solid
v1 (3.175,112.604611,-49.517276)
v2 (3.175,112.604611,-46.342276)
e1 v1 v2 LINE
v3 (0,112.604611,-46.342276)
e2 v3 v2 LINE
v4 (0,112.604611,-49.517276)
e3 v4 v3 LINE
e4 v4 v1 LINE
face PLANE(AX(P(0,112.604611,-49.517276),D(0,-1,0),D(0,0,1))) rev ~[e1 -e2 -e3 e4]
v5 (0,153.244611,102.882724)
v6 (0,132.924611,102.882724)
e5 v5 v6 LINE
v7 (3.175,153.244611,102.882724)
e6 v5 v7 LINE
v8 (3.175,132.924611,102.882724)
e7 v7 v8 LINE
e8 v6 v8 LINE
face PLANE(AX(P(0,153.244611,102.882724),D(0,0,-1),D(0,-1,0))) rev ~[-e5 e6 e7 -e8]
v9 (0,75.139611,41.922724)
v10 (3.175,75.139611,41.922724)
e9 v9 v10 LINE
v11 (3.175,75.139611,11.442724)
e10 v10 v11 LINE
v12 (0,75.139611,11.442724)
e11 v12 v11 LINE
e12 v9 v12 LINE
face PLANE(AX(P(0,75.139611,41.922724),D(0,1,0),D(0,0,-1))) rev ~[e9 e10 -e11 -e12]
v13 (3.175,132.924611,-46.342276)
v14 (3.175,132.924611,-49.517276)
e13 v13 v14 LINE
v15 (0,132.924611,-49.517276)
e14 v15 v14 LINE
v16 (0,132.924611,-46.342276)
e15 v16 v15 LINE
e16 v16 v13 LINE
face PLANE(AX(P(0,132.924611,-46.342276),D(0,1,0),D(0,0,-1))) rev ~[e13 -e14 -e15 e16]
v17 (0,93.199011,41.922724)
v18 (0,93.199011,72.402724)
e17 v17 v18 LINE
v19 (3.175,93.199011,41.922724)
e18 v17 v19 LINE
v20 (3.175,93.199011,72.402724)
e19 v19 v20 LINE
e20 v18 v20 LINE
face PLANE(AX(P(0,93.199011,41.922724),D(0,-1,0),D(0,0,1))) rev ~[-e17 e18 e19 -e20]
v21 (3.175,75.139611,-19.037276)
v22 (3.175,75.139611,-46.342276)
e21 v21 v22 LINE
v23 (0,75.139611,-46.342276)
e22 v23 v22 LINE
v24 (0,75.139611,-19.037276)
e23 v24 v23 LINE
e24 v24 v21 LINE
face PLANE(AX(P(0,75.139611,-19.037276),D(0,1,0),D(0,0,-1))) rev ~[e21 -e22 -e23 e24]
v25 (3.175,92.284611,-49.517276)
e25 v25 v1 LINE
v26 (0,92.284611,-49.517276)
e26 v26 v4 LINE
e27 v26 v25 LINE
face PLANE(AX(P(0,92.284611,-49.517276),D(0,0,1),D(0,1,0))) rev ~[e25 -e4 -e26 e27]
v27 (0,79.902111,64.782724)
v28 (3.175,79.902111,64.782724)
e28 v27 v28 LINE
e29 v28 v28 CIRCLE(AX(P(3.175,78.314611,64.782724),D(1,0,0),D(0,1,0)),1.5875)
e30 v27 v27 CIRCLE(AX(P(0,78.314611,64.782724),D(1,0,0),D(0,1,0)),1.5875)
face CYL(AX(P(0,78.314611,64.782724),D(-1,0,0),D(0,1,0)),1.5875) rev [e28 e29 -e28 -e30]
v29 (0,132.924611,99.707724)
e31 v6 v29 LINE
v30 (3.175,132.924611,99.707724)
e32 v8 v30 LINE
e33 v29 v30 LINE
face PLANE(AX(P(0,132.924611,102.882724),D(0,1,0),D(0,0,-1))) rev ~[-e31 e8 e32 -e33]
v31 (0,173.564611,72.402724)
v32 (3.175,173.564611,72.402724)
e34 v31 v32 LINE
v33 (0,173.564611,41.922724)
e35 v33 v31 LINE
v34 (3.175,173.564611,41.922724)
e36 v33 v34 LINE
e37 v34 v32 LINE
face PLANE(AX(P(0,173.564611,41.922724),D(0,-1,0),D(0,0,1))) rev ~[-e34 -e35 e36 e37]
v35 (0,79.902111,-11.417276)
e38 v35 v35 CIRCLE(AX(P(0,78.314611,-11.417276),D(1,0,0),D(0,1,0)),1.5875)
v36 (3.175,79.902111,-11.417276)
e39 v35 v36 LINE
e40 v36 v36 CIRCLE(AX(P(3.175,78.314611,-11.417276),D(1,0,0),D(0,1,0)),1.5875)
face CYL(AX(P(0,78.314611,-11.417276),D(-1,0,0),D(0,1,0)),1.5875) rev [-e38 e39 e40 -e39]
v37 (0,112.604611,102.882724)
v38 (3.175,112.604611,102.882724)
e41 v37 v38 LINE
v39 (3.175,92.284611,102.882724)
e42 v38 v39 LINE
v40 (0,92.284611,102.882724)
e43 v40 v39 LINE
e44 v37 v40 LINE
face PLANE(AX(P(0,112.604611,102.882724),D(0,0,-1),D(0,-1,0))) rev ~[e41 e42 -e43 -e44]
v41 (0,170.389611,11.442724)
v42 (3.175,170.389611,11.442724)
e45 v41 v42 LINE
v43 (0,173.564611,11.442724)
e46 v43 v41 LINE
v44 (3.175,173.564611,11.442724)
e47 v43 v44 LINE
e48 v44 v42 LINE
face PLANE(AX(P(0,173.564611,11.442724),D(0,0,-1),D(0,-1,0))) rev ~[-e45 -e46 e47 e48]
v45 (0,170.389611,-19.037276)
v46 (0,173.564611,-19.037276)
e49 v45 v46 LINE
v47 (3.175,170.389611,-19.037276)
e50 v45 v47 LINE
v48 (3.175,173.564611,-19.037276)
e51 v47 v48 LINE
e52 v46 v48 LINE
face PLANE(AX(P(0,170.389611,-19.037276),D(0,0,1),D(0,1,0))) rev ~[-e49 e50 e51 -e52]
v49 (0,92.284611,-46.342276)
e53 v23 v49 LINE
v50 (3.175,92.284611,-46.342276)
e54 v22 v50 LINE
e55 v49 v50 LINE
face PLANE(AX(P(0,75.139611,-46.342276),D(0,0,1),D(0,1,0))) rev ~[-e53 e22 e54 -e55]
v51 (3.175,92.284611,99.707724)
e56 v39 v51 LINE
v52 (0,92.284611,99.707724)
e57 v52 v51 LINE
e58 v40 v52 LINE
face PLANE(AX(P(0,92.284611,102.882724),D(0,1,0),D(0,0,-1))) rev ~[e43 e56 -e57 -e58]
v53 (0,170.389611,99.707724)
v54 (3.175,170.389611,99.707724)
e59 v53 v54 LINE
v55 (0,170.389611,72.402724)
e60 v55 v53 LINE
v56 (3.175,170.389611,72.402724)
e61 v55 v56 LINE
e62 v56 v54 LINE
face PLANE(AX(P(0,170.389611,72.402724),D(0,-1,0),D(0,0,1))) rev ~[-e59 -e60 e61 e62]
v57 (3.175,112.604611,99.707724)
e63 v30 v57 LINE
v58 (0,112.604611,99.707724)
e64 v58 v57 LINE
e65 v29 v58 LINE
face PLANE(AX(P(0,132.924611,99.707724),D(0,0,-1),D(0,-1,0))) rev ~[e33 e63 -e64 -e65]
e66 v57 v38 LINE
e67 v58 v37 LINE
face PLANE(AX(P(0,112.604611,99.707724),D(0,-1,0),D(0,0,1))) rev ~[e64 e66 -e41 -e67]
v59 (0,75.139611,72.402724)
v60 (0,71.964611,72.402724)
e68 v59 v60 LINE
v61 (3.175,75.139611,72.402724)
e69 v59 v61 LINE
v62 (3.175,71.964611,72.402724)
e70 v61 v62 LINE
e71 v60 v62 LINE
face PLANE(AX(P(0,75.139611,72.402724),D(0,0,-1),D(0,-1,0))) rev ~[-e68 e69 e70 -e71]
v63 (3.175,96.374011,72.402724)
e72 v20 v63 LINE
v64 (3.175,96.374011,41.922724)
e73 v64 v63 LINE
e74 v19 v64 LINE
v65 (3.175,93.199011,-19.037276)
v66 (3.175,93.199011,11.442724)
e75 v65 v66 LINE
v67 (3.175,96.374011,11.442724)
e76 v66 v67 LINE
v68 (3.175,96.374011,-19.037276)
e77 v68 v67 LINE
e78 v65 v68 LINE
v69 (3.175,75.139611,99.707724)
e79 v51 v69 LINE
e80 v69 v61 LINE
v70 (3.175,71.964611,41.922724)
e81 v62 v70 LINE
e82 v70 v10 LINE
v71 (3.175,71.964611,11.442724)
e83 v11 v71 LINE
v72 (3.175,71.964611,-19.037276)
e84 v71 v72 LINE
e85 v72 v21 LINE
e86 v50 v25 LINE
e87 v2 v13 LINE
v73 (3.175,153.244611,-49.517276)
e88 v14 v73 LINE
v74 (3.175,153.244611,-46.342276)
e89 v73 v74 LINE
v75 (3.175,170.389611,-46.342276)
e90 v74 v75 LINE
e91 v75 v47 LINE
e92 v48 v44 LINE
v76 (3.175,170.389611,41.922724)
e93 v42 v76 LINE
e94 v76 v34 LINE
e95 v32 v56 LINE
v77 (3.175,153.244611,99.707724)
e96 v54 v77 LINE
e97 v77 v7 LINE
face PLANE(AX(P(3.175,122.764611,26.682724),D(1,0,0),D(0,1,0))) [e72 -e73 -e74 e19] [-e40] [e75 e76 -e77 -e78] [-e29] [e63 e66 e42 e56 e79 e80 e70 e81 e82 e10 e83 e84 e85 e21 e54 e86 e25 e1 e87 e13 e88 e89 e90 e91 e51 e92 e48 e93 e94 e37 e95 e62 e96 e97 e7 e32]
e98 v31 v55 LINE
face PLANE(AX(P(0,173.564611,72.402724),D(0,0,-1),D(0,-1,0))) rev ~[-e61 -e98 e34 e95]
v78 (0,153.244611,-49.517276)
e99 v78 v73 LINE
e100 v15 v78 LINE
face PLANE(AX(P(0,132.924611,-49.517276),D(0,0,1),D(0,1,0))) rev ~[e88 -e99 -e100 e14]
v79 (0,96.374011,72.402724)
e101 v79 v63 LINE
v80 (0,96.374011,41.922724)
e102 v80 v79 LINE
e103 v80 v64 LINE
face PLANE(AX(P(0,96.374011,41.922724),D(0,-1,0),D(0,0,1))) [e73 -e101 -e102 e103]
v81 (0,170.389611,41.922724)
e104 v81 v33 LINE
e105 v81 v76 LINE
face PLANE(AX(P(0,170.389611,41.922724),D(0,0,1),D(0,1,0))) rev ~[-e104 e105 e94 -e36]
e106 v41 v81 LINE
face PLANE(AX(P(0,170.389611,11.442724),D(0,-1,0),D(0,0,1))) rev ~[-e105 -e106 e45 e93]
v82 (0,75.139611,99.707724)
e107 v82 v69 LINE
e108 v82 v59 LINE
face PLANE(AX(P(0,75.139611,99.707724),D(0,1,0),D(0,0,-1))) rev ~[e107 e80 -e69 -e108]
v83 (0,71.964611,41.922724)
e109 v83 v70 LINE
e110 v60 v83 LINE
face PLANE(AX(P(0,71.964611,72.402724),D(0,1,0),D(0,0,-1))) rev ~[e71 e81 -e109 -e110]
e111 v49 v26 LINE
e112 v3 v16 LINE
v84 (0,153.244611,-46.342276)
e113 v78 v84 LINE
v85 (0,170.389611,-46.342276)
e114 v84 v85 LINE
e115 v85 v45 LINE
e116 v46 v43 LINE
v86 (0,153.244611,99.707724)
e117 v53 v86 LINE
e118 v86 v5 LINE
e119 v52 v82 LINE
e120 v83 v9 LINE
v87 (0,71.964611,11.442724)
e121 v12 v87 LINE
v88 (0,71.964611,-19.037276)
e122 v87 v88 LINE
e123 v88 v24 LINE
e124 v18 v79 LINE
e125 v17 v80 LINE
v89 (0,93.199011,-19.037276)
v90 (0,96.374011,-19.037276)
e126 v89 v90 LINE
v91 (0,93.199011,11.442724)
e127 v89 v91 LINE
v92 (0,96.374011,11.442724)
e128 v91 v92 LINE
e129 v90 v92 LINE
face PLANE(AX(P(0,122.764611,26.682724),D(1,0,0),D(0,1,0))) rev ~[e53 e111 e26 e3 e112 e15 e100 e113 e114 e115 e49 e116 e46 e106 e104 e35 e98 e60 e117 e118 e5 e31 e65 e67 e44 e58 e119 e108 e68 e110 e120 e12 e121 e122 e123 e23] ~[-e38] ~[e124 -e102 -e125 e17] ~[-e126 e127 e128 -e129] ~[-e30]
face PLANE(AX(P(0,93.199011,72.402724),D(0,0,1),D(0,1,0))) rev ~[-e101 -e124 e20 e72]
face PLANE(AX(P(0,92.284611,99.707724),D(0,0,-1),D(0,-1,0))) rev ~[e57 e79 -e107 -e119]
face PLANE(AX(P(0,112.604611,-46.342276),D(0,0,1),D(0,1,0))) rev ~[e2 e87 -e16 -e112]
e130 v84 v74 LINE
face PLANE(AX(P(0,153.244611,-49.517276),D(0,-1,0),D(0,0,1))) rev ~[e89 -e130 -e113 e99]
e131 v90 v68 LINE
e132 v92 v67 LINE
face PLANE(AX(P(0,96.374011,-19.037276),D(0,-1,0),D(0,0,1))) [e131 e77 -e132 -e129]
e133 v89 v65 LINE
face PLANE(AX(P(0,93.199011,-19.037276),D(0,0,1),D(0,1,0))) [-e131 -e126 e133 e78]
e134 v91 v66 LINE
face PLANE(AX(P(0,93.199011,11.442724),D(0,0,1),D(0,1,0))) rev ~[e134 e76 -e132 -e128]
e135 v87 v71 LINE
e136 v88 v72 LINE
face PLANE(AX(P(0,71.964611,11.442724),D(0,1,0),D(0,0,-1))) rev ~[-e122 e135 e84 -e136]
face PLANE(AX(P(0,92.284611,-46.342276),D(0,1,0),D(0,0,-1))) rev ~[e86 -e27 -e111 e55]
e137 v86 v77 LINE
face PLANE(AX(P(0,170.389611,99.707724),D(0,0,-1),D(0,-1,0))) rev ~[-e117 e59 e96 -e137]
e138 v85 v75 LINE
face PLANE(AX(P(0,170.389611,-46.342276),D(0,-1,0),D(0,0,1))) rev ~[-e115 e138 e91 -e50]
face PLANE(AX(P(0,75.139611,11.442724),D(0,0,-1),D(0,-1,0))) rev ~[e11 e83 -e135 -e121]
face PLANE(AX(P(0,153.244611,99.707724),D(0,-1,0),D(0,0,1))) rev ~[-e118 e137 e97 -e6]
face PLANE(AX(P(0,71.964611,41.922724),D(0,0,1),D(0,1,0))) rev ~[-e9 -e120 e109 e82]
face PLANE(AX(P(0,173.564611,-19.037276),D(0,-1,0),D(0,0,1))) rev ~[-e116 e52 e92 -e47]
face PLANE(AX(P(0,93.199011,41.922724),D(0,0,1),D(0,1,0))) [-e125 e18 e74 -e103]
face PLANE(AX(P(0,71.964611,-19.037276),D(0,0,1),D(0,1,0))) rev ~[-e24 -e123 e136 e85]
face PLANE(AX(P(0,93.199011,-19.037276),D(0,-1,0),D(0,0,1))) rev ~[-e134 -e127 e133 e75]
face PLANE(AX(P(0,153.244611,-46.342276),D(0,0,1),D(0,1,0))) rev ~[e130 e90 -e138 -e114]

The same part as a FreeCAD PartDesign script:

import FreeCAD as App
import Part
import Sketcher
from FreeCAD import Vector
Q = App.Units.Quantity

doc = App.newDocument("Part")
body = doc.addObject("PartDesign::Body", "Body")

# Sketch on YZ plane
sketch1 = doc.addObject("Sketcher::SketchObject", "Sketch")
body.addObject(sketch1)
sketch1.AttachmentSupport = (doc.YZ_Plane, [""])
sketch1.MapMode = "FlatFace"
sketch1.addGeometry(Part.LineSegment(Vector(92.3, 102.9, 0), Vector(92.3, 99.7, 0)), False)
sketch1.addGeometry(Part.LineSegment(Vector(92.3, 99.7, 0), Vector(75.1, 99.7, 0)), False)
sketch1.addGeometry(Part.LineSegment(Vector(75.1, 99.7, 0), Vector(75.1, 72.4, 0)), False)
sketch1.addGeometry(Part.LineSegment(Vector(75.1, 72.4, 0), Vector(72, 72.4, 0)), False)
sketch1.addGeometry(Part.LineSegment(Vector(72, 72.4, 0), Vector(72, 41.9, 0)), False)
sketch1.addGeometry(Part.LineSegment(Vector(72, 41.9, 0), Vector(75.1, 41.9, 0)), False)
sketch1.addGeometry(Part.LineSegment(Vector(75.1, 41.9, 0), Vector(75.1, 11.4, 0)), False)
sketch1.addGeometry(Part.LineSegment(Vector(75.1, 11.4, 0), Vector(72, 11.4, 0)), False)
sketch1.addGeometry(Part.LineSegment(Vector(72, 11.4, 0), Vector(72, -19, 0)), False)
sketch1.addGeometry(Part.LineSegment(Vector(72, -19, 0), Vector(75.1, -19, 0)), False)
sketch1.addGeometry(Part.LineSegment(Vector(75.1, -19, 0), Vector(75.1, -46.3, 0)), False)
sketch1.addGeometry(Part.LineSegment(Vector(75.1, -46.3, 0), Vector(92.3, -46.3, 0)), False)
sketch1.addGeometry(Part.LineSegment(Vector(92.3, -46.3, 0), Vector(92.3, -49.5, 0)), False)
sketch1.addGeometry(Part.LineSegment(Vector(92.3, -49.5, 0), Vector(112.6, -49.5, 0)), False)
sketch1.addGeometry(Part.LineSegment(Vector(112.6, -49.5, 0), Vector(112.6, -46.3, 0)), False)
sketch1.addGeometry(Part.LineSegment(Vector(112.6, -46.3, 0), Vector(132.9, -46.3, 0)), False)
sketch1.addGeometry(Part.LineSegment(Vector(132.9, -46.3, 0), Vector(132.9, -49.5, 0)), False)
sketch1.addGeometry(Part.LineSegment(Vector(132.9, -49.5, 0), Vector(153.2, -49.5, 0)), False)
sketch1.addGeometry(Part.LineSegment(Vector(153.2, -49.5, 0), Vector(153.2, -46.3, 0)), False)
sketch1.addGeometry(Part.LineSegment(Vector(153.2, -46.3, 0), Vector(170.4, -46.3, 0)), False)
sketch1.addGeometry(Part.LineSegment(Vector(170.4, -46.3, 0), Vector(170.4, -19, 0)), False)
sketch1.addGeometry(Part.LineSegment(Vector(170.4, -19, 0), Vector(173.6, -19, 0)), False)
sketch1.addGeometry(Part.LineSegment(Vector(173.6, -19, 0), Vector(173.6, 11.4, 0)), False)
sketch1.addGeometry(Part.LineSegment(Vector(173.6, 11.4, 0), Vector(170.4, 11.4, 0)), False)
sketch1.addGeometry(Part.LineSegment(Vector(170.4, 11.4, 0), Vector(170.4, 41.9, 0)), False)
sketch1.addGeometry(Part.LineSegment(Vector(170.4, 41.9, 0), Vector(173.6, 41.9, 0)), False)
sketch1.addGeometry(Part.LineSegment(Vector(173.6, 41.9, 0), Vector(173.6, 72.4, 0)), False)
sketch1.addGeometry(Part.LineSegment(Vector(173.6, 72.4, 0), Vector(170.4, 72.4, 0)), False)
sketch1.addGeometry(Part.LineSegment(Vector(170.4, 72.4, 0), Vector(170.4, 99.7, 0)), False)
sketch1.addGeometry(Part.LineSegment(Vector(170.4, 99.7, 0), Vector(153.2, 99.7, 0)), False)
sketch1.addGeometry(Part.LineSegment(Vector(153.2, 99.7, 0), Vector(153.2, 102.9, 0)), False)
sketch1.addGeometry(Part.LineSegment(Vector(153.2, 102.9, 0), Vector(132.9, 102.9, 0)), False)
sketch1.addGeometry(Part.LineSegment(Vector(132.9, 102.9, 0), Vector(132.9, 99.7, 0)), False)
sketch1.addGeometry(Part.LineSegment(Vector(132.9, 99.7, 0), Vector(112.6, 99.7, 0)), False)
sketch1.addGeometry(Part.LineSegment(Vector(112.6, 99.7, 0), Vector(112.6, 102.9, 0)), False)
sketch1.addGeometry(Part.LineSegment(Vector(112.6, 102.9, 0), Vector(92.3, 102.9, 0)), False)
sketch1.addGeometry(Part.Circle(Vector(78.3, -11.4, 0), Vector(0, 0, 1), 1.6), False)
sketch1.addGeometry(Part.LineSegment(Vector(96.4, -19, 0), Vector(93.2, -19, 0)), False)
sketch1.addGeometry(Part.LineSegment(Vector(93.2, -19, 0), Vector(93.2, 11.4, 0)), False)
sketch1.addGeometry(Part.LineSegment(Vector(93.2, 11.4, 0), Vector(96.4, 11.4, 0)), False)
sketch1.addGeometry(Part.LineSegment(Vector(96.4, 11.4, 0), Vector(96.4, -19, 0)), False)
sketch1.addGeometry(Part.Circle(Vector(78.3, 64.8, 0), Vector(0, 0, 1), 1.6), False)
sketch1.addGeometry(Part.LineSegment(Vector(96.4, 41.9, 0), Vector(93.2, 41.9, 0)), False)
sketch1.addGeometry(Part.LineSegment(Vector(93.2, 41.9, 0), Vector(93.2, 72.4, 0)), False)
sketch1.addGeometry(Part.LineSegment(Vector(93.2, 72.4, 0), Vector(96.4, 72.4, 0)), False)
sketch1.addGeometry(Part.LineSegment(Vector(96.4, 72.4, 0), Vector(96.4, 41.9, 0)), False)
sketch1.addConstraint(Sketcher.Constraint("Coincident", 0, 2, 1, 1))
sketch1.addConstraint(Sketcher.Constraint("Coincident", 1, 2, 2, 1))
sketch1.addConstraint(Sketcher.Constraint("Coincident", 2, 2, 3, 1))
sketch1.addConstraint(Sketcher.Constraint("Coincident", 3, 2, 4, 1))
sketch1.addConstraint(Sketcher.Constraint("Coincident", 4, 2, 5, 1))
sketch1.addConstraint(Sketcher.Constraint("Coincident", 5, 2, 6, 1))
sketch1.addConstraint(Sketcher.Constraint("Coincident", 6, 2, 7, 1))
sketch1.addConstraint(Sketcher.Constraint("Coincident", 7, 2, 8, 1))
sketch1.addConstraint(Sketcher.Constraint("Coincident", 8, 2, 9, 1))
sketch1.addConstraint(Sketcher.Constraint("Coincident", 9, 2, 10, 1))
sketch1.addConstraint(Sketcher.Constraint("Coincident", 10, 2, 11, 1))
sketch1.addConstraint(Sketcher.Constraint("Coincident", 11, 2, 12, 1))
sketch1.addConstraint(Sketcher.Constraint("Coincident", 12, 2, 13, 1))
sketch1.addConstraint(Sketcher.Constraint("Coincident", 13, 2, 14, 1))
sketch1.addConstraint(Sketcher.Constraint("Coincident", 14, 2, 15, 1))
sketch1.addConstraint(Sketcher.Constraint("Coincident", 15, 2, 16, 1))
sketch1.addConstraint(Sketcher.Constraint("Coincident", 16, 2, 17, 1))
sketch1.addConstraint(Sketcher.Constraint("Coincident", 17, 2, 18, 1))
sketch1.addConstraint(Sketcher.Constraint("Coincident", 18, 2, 19, 1))
sketch1.addConstraint(Sketcher.Constraint("Coincident", 19, 2, 20, 1))
sketch1.addConstraint(Sketcher.Constraint("Coincident", 20, 2, 21, 1))
sketch1.addConstraint(Sketcher.Constraint("Coincident", 21, 2, 22, 1))
sketch1.addConstraint(Sketcher.Constraint("Coincident", 22, 2, 23, 1))
sketch1.addConstraint(Sketcher.Constraint("Coincident", 23, 2, 24, 1))
sketch1.addConstraint(Sketcher.Constraint("Coincident", 24, 2, 25, 1))
sketch1.addConstraint(Sketcher.Constraint("Coincident", 25, 2, 26, 1))
sketch1.addConstraint(Sketcher.Constraint("Coincident", 26, 2, 27, 1))
sketch1.addConstraint(Sketcher.Constraint("Coincident", 27, 2, 28, 1))
sketch1.addConstraint(Sketcher.Constraint("Coincident", 28, 2, 29, 1))
sketch1.addConstraint(Sketcher.Constraint("Coincident", 29, 2, 30, 1))
sketch1.addConstraint(Sketcher.Constraint("Coincident", 30, 2, 31, 1))
sketch1.addConstraint(Sketcher.Constraint("Coincident", 31, 2, 32, 1))
sketch1.addConstraint(Sketcher.Constraint("Coincident", 32, 2, 33, 1))
sketch1.addConstraint(Sketcher.Constraint("Coincident", 33, 2, 34, 1))
sketch1.addConstraint(Sketcher.Constraint("Coincident", 34, 2, 35, 1))
sketch1.addConstraint(Sketcher.Constraint("Coincident", 35, 2, 0, 1))
sketch1.addConstraint(Sketcher.Constraint("Coincident", 37, 2, 38, 1))
sketch1.addConstraint(Sketcher.Constraint("Coincident", 38, 2, 39, 1))
sketch1.addConstraint(Sketcher.Constraint("Coincident", 39, 2, 40, 1))
sketch1.addConstraint(Sketcher.Constraint("Coincident", 40, 2, 37, 1))
sketch1.addConstraint(Sketcher.Constraint("Coincident", 42, 2, 43, 1))
sketch1.addConstraint(Sketcher.Constraint("Coincident", 43, 2, 44, 1))
sketch1.addConstraint(Sketcher.Constraint("Coincident", 44, 2, 45, 1))
sketch1.addConstraint(Sketcher.Constraint("Coincident", 45, 2, 42, 1))
sketch1.addConstraint(Sketcher.Constraint("Vertical", 0))
sketch1.addConstraint(Sketcher.Constraint("Horizontal", 1))
sketch1.addConstraint(Sketcher.Constraint("Vertical", 2))
sketch1.addConstraint(Sketcher.Constraint("Horizontal", 3))
sketch1.addConstraint(Sketcher.Constraint("Vertical", 4))
sketch1.addConstraint(Sketcher.Constraint("Horizontal", 5))
sketch1.addConstraint(Sketcher.Constraint("Vertical", 6))
sketch1.addConstraint(Sketcher.Constraint("Horizontal", 7))
sketch1.addConstraint(Sketcher.Constraint("Vertical", 8))
sketch1.addConstraint(Sketcher.Constraint("Horizontal", 9))
sketch1.addConstraint(Sketcher.Constraint("Vertical", 10))
sketch1.addConstraint(Sketcher.Constraint("Horizontal", 11))
sketch1.addConstraint(Sketcher.Constraint("Vertical", 12))
sketch1.addConstraint(Sketcher.Constraint("Horizontal", 13))
sketch1.addConstraint(Sketcher.Constraint("Vertical", 14))
sketch1.addConstraint(Sketcher.Constraint("Horizontal", 15))
sketch1.addConstraint(Sketcher.Constraint("Vertical", 16))
sketch1.addConstraint(Sketcher.Constraint("Horizontal", 17))
sketch1.addConstraint(Sketcher.Constraint("Vertical", 18))
sketch1.addConstraint(Sketcher.Constraint("Horizontal", 19))
sketch1.addConstraint(Sketcher.Constraint("Vertical", 20))
sketch1.addConstraint(Sketcher.Constraint("Horizontal", 21))
sketch1.addConstraint(Sketcher.Constraint("Vertical", 22))
sketch1.addConstraint(Sketcher.Constraint("Horizontal", 23))
sketch1.addConstraint(Sketcher.Constraint("Vertical", 24))
sketch1.addConstraint(Sketcher.Constraint("Horizontal", 25))
sketch1.addConstraint(Sketcher.Constraint("Vertical", 26))
sketch1.addConstraint(Sketcher.Constraint("Horizontal", 27))
sketch1.addConstraint(Sketcher.Constraint("Vertical", 28))
sketch1.addConstraint(Sketcher.Constraint("Horizontal", 29))
sketch1.addConstraint(Sketcher.Constraint("Vertical", 30))
sketch1.addConstraint(Sketcher.Constraint("Horizontal", 31))
sketch1.addConstraint(Sketcher.Constraint("Vertical", 32))
sketch1.addConstraint(Sketcher.Constraint("Horizontal", 33))
sketch1.addConstraint(Sketcher.Constraint("Vertical", 34))
sketch1.addConstraint(Sketcher.Constraint("Horizontal", 35))
sketch1.addConstraint(Sketcher.Constraint("Horizontal", 37))
sketch1.addConstraint(Sketcher.Constraint("Vertical", 38))
sketch1.addConstraint(Sketcher.Constraint("Horizontal", 39))
sketch1.addConstraint(Sketcher.Constraint("Vertical", 40))
sketch1.addConstraint(Sketcher.Constraint("Horizontal", 42))
sketch1.addConstraint(Sketcher.Constraint("Vertical", 43))
sketch1.addConstraint(Sketcher.Constraint("Horizontal", 44))
sketch1.addConstraint(Sketcher.Constraint("Vertical", 45))
sketch1.addConstraint(Sketcher.Constraint("Equal", 36, 41))
sketch1.addConstraint(Sketcher.Constraint("Horizontal", 11, 2, 14, 2))
sketch1.addConstraint(Sketcher.Constraint("Horizontal", 13, 2, 16, 2))
sketch1.addConstraint(Sketcher.Constraint("Horizontal", 15, 2, 18, 2))
sketch1.addConstraint(Sketcher.Constraint("Horizontal", 9, 2, 20, 2))
sketch1.addConstraint(Sketcher.Constraint("Horizontal", 7, 2, 22, 2))
sketch1.addConstraint(Sketcher.Constraint("Horizontal", 5, 2, 24, 2))
sketch1.addConstraint(Sketcher.Constraint("Horizontal", 3, 2, 26, 2))
sketch1.addConstraint(Sketcher.Constraint("Horizontal", 1, 2, 28, 2))
sketch1.addConstraint(Sketcher.Constraint("Horizontal", 29, 2, 32, 2))
sketch1.addConstraint(Sketcher.Constraint("Horizontal", 31, 2, 34, 2))
sketch1.addConstraint(Sketcher.Constraint("Horizontal", 21, 2, 37, 2))
sketch1.addConstraint(Sketcher.Constraint("Horizontal", 23, 2, 38, 2))
sketch1.addConstraint(Sketcher.Constraint("Horizontal", 25, 2, 42, 2))
sketch1.addConstraint(Sketcher.Constraint("Horizontal", 27, 2, 43, 2))
sketch1.addConstraint(Sketcher.Constraint("Vertical", 36, 3, 41, 3))
sketch1.addConstraint(Sketcher.Constraint("Vertical", 2, 2, 5, 2))
sketch1.addConstraint(Sketcher.Constraint("Vertical", 4, 2, 7, 2))
sketch1.addConstraint(Sketcher.Constraint("Vertical", 6, 2, 9, 2))
sketch1.addConstraint(Sketcher.Constraint("Vertical", 0, 2, 11, 2))
sketch1.addConstraint(Sketcher.Constraint("Vertical", 20, 2, 23, 2))
sketch1.addConstraint(Sketcher.Constraint("Vertical", 22, 2, 25, 2))
sketch1.addConstraint(Sketcher.Constraint("Vertical", 24, 2, 27, 2))
sketch1.addConstraint(Sketcher.Constraint("Vertical", 18, 2, 29, 2))
sketch1.addConstraint(Sketcher.Constraint("Vertical", 16, 2, 31, 2))
sketch1.addConstraint(Sketcher.Constraint("Vertical", 14, 2, 33, 2))
sketch1.addConstraint(Sketcher.Constraint("Vertical", 38, 2, 42, 2))
sketch1.addConstraint(Sketcher.Constraint("Vertical", 40, 2, 44, 2))
sketch1.addConstraint(Sketcher.Constraint("Equal", 13, 15))
sketch1.addConstraint(Sketcher.Constraint("Equal", 15, 17))
sketch1.addConstraint(Sketcher.Constraint("Equal", 11, 19))
sketch1.addConstraint(Sketcher.Constraint("Equal", 9, 21))
sketch1.addConstraint(Sketcher.Constraint("Equal", 27, 37))
sketch1.addConstraint(Sketcher.Constraint("Equal", 44, 0))
sketch1.addConstraint(Sketcher.Constraint("Equal", 4, 6))
sketch1.addConstraint(Sketcher.Constraint("Equal", 6, 8))
sketch1.addConstraint(Sketcher.Constraint("Equal", 2, 10))
sketch1.addConstraint(Sketcher.Constraint("Equal", 0, 12))
sketch1.addConstraint(Sketcher.Constraint("Diameter", 36, Q("0.125 in")))
sketch1.addConstraint(Sketcher.Constraint("DistanceX", 13, 1, 13, 2, Q("0.8 in")))
sketch1.addConstraint(Sketcher.Constraint("DistanceY", 4, 2, 4, 1, Q("1.2 in")))
sketch1.addConstraint(Sketcher.Constraint("DistanceY", 36, 3, 41, 3, Q("3 in")))
sketch1.addConstraint(Sketcher.Constraint("DistanceY", 41, 3, 2, 2, Q("0.3 in")))
sketch1.addConstraint(Sketcher.Constraint("DistanceX", 3, 2, 0, 2, Q("0.8 in")))
sketch1.addConstraint(Sketcher.Constraint("DistanceY", 12, 2, 9, 2, Q("1.2 in")))
sketch1.addConstraint(Sketcher.Constraint("DistanceX", 1, 2, 1, 1, Q("0.675 in")))
sketch1.addConstraint(Sketcher.Constraint("DistanceX", 41, 3, 0, 2, Q("0.55 in")))
sketch1.addConstraint(Sketcher.Constraint("DistanceX", 36, 3, 37, 2, Q("0.586 in")))
sketch1.addConstraint(Sketcher.Constraint("DistanceX", -1, 1, 36, 3, Q("78.314611 mm")))
sketch1.addConstraint(Sketcher.Constraint("DistanceY", 36, 3, -1, 1, Q("11.417276 mm")))
pad1 = doc.addObject("PartDesign::Pad", "Pad")
body.addObject(pad1)
pad1.Profile = sketch1
pad1.Length = Q("0.125 in")

doc.recompute()
